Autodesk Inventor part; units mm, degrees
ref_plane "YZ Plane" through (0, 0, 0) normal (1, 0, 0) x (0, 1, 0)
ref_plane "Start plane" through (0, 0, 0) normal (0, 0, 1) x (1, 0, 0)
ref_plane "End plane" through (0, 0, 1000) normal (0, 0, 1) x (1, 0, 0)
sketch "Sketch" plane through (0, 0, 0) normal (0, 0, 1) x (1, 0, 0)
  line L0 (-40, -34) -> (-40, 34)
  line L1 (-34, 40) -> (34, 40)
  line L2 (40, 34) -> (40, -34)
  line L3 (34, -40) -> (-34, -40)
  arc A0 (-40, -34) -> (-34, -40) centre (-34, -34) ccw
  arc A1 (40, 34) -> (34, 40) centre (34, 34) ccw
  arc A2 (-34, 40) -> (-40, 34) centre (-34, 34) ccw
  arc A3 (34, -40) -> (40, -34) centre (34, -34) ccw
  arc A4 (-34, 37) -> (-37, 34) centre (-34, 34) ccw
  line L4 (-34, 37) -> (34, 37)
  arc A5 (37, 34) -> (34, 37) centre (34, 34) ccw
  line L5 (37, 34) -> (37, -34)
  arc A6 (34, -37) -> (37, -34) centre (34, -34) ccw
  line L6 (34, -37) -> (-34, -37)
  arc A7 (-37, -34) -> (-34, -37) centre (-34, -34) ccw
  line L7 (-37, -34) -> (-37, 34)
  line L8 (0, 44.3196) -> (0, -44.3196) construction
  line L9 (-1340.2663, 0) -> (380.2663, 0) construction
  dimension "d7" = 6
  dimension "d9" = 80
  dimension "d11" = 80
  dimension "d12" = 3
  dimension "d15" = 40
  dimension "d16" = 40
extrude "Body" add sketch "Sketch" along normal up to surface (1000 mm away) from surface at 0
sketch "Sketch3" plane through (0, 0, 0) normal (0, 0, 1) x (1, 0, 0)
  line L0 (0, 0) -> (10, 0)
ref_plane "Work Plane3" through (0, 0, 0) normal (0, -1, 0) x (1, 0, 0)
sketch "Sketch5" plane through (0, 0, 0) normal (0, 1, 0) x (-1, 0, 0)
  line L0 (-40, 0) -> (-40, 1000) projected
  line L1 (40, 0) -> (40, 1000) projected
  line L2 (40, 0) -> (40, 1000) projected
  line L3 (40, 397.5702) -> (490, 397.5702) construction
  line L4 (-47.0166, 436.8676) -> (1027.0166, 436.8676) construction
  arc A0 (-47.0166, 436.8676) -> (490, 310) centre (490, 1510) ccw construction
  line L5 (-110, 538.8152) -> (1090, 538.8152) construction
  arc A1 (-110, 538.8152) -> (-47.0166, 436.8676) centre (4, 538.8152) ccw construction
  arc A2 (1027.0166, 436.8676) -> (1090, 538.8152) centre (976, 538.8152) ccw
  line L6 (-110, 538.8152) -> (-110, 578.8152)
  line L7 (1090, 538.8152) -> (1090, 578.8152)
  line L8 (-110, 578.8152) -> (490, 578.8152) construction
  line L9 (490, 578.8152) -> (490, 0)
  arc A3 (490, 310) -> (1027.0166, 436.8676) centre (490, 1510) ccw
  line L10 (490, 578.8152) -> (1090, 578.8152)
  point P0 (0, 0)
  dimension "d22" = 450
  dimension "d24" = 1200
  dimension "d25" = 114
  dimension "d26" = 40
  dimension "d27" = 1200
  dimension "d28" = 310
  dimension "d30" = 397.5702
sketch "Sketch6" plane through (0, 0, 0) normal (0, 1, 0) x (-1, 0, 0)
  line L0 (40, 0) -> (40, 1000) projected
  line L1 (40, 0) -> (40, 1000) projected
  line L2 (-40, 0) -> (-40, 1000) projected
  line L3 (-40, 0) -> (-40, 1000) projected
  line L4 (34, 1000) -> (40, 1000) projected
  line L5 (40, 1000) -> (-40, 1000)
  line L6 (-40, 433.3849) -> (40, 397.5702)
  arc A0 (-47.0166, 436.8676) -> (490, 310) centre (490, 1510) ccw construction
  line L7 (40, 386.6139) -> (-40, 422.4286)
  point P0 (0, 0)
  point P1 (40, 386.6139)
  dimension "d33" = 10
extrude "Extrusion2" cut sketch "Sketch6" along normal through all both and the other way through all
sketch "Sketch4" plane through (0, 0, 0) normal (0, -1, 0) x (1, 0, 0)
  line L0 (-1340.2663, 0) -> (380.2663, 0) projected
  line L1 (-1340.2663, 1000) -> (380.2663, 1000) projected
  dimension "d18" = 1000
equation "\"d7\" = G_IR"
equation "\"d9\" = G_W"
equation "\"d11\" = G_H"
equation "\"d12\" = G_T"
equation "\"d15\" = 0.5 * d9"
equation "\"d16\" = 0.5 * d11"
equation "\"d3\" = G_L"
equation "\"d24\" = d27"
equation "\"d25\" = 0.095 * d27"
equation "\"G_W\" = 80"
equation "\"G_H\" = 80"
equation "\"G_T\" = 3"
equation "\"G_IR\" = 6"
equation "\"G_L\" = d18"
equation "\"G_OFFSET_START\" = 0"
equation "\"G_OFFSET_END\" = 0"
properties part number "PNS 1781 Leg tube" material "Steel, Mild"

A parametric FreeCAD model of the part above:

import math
import FreeCAD as App
import Part
import Sketcher
from FreeCAD import Vector


def add_polygon(sketch, points):
    """Adds a closed chain of lines whose ends are joined by coincident constraints."""
    first, n = sketch.GeometryCount, len(points)
    for a, b in zip(points, points[1:] + points[:1]):
        sketch.addGeometry(Part.LineSegment(App.Vector(*a, 0), App.Vector(*b, 0)), False)
    for i in range(n):
        sketch.addConstraint(Sketcher.Constraint("Coincident", first + i, 2, first + (i + 1) % n, 1))

doc = App.newDocument("Part")
body = doc.addObject("PartDesign::Body", "Body")

# Sketch on XY plane
sketch1 = doc.addObject("Sketcher::SketchObject", "Sketch")
body.addObject(sketch1)
sketch1.AttachmentSupport = (doc.XY_Plane, [""])
sketch1.MapMode = "FlatFace"
sketch1.addGeometry(Part.LineSegment(Vector(-40, 34, 0), Vector(-40, -34, 0)), False)
sketch1.addGeometry(Part.ArcOfCircle(Part.Circle(Vector(-34, -34, 0), Vector(0, 0, 1), 6), math.radians(180), math.radians(270)), False)
sketch1.addGeometry(Part.LineSegment(Vector(-34, -40, 0), Vector(34, -40, 0)), False)
sketch1.addGeometry(Part.ArcOfCircle(Part.Circle(Vector(34, -34, 0), Vector(0, 0, 1), 6), math.radians(-90), math.radians(0)), False)
sketch1.addGeometry(Part.LineSegment(Vector(40, -34, 0), Vector(40, 34, 0)), False)
sketch1.addGeometry(Part.ArcOfCircle(Part.Circle(Vector(34, 34, 0), Vector(0, 0, 1), 6), math.radians(0), math.radians(90)), False)
sketch1.addGeometry(Part.LineSegment(Vector(34, 40, 0), Vector(-34, 40, 0)), False)
sketch1.addGeometry(Part.ArcOfCircle(Part.Circle(Vector(-34, 34, 0), Vector(0, 0, 1), 6), math.radians(90), math.radians(180)), False)
sketch1.addGeometry(Part.ArcOfCircle(Part.Circle(Vector(-34, 34, 0), Vector(0, 0, 1), 3), math.radians(90), math.radians(180)), False)
sketch1.addGeometry(Part.LineSegment(Vector(-34, 37, 0), Vector(34, 37, 0)), False)
sketch1.addGeometry(Part.ArcOfCircle(Part.Circle(Vector(34, 34, 0), Vector(0, 0, 1), 3), math.radians(0), math.radians(90)), False)
sketch1.addGeometry(Part.LineSegment(Vector(37, 34, 0), Vector(37, -34, 0)), False)
sketch1.addGeometry(Part.ArcOfCircle(Part.Circle(Vector(34, -34, 0), Vector(0, 0, 1), 3), math.radians(-90), math.radians(0)), False)
sketch1.addGeometry(Part.LineSegment(Vector(34, -37, 0), Vector(-34, -37, 0)), False)
sketch1.addGeometry(Part.ArcOfCircle(Part.Circle(Vector(-34, -34, 0), Vector(0, 0, 1), 3), math.radians(180), math.radians(270)), False)
sketch1.addGeometry(Part.LineSegment(Vector(-37, -34, 0), Vector(-37, 34, 0)), False)
sketch1.addConstraint(Sketcher.Constraint("Tangent", 0, 2, 1, 1))
sketch1.addConstraint(Sketcher.Constraint("Tangent", 1, 2, 2, 1))
sketch1.addConstraint(Sketcher.Constraint("Tangent", 2, 2, 3, 1))
sketch1.addConstraint(Sketcher.Constraint("Tangent", 3, 2, 4, 1))
sketch1.addConstraint(Sketcher.Constraint("Tangent", 4, 2, 5, 1))
sketch1.addConstraint(Sketcher.Constraint("Tangent", 5, 2, 6, 1))
sketch1.addConstraint(Sketcher.Constraint("Tangent", 6, 2, 7, 1))
sketch1.addConstraint(Sketcher.Constraint("Tangent", 7, 2, 0, 1))
sketch1.addConstraint(Sketcher.Constraint("Tangent", 8, 1, 9, 1))
sketch1.addConstraint(Sketcher.Constraint("Tangent", 9, 2, 10, 2))
sketch1.addConstraint(Sketcher.Constraint("Tangent", 10, 1, 11, 1))
sketch1.addConstraint(Sketcher.Constraint("Tangent", 11, 2, 12, 2))
sketch1.addConstraint(Sketcher.Constraint("Tangent", 12, 1, 13, 1))
sketch1.addConstraint(Sketcher.Constraint("Tangent", 13, 2, 14, 2))
sketch1.addConstraint(Sketcher.Constraint("Tangent", 14, 1, 15, 1))
sketch1.addConstraint(Sketcher.Constraint("Tangent", 15, 2, 8, 2))
sketch1.addConstraint(Sketcher.Constraint("Vertical", 0))
sketch1.addConstraint(Sketcher.Constraint("Horizontal", 2))
sketch1.addConstraint(Sketcher.Constraint("Vertical", 4))
sketch1.addConstraint(Sketcher.Constraint("Horizontal", 6))
sketch1.addConstraint(Sketcher.Constraint("Horizontal", 9))
sketch1.addConstraint(Sketcher.Constraint("Vertical", 11))
sketch1.addConstraint(Sketcher.Constraint("Horizontal", 13))
sketch1.addConstraint(Sketcher.Constraint("Vertical", 15))
sketch1.addConstraint(Sketcher.Constraint("Coincident", 8, 3, 7, 3))
sketch1.addConstraint(Sketcher.Constraint("Coincident", 10, 3, 5, 3))
sketch1.addConstraint(Sketcher.Constraint("Coincident", 12, 3, 3, 3))
sketch1.addConstraint(Sketcher.Constraint("Equal", 1, 3))
sketch1.addConstraint(Sketcher.Constraint("Equal", 3, 5))
sketch1.addConstraint(Sketcher.Constraint("Equal", 5, 7))
sketch1.addConstraint(Sketcher.Constraint("Equal", 12, 14))
sketch1.addConstraint(Sketcher.Constraint("Symmetric", 1, 3, 5, 3, -1, 1))
sketch1.addConstraint(Sketcher.Constraint("Equal", 13, 0))
sketch1.addConstraint(Sketcher.Constraint("Radius", 1, 6.0))
sketch1.addConstraint(Sketcher.Constraint("Radius", 8, 3.0))
sketch1.addConstraint(Sketcher.Constraint("DistanceX", 0, 2, -1, 1, 40.0))
pad1 = doc.addObject("PartDesign::Pad", "Pad")
body.addObject(pad1)
pad1.Profile = sketch1
pad1.Length = 1000

# Sketch on XZ plane
sketch2 = doc.addObject("Sketcher::SketchObject", "Sketch001")
body.addObject(sketch2)
sketch2.AttachmentSupport = (doc.XZ_Plane, [""])
sketch2.MapMode = "FlatFace"
add_polygon(sketch2, [(40, 422.4286), (-40, 386.6139), (-40, 1000), (40, 1000)])  # lines 0-3
sketch2.addConstraint(Sketcher.Constraint("Vertical", 1))
sketch2.addConstraint(Sketcher.Constraint("Horizontal", 2))
sketch2.addConstraint(Sketcher.Constraint("Vertical", 3))
sketch2.addConstraint(Sketcher.Constraint("DistanceX", 2, 1, 2, 2, 80.0))
sketch2.addConstraint(Sketcher.Constraint("DistanceX", 0, 2, -1, 1, 40.0))
sketch2.addConstraint(Sketcher.Constraint("DistanceY", -1, 1, 1, 2, 1000.0))
sketch2.addConstraint(Sketcher.Constraint("DistanceY", 1, 1, 1, 2, 613.386))
sketch2.addConstraint(Sketcher.Constraint("Distance", 0, 87.651))
pocket1 = doc.addObject("PartDesign::Pocket", "Pocket")
body.addObject(pocket1)
pocket1.Profile = sketch2
pocket1.Type = "ThroughAll"
pocket1.Midplane = True

doc.recompute()
